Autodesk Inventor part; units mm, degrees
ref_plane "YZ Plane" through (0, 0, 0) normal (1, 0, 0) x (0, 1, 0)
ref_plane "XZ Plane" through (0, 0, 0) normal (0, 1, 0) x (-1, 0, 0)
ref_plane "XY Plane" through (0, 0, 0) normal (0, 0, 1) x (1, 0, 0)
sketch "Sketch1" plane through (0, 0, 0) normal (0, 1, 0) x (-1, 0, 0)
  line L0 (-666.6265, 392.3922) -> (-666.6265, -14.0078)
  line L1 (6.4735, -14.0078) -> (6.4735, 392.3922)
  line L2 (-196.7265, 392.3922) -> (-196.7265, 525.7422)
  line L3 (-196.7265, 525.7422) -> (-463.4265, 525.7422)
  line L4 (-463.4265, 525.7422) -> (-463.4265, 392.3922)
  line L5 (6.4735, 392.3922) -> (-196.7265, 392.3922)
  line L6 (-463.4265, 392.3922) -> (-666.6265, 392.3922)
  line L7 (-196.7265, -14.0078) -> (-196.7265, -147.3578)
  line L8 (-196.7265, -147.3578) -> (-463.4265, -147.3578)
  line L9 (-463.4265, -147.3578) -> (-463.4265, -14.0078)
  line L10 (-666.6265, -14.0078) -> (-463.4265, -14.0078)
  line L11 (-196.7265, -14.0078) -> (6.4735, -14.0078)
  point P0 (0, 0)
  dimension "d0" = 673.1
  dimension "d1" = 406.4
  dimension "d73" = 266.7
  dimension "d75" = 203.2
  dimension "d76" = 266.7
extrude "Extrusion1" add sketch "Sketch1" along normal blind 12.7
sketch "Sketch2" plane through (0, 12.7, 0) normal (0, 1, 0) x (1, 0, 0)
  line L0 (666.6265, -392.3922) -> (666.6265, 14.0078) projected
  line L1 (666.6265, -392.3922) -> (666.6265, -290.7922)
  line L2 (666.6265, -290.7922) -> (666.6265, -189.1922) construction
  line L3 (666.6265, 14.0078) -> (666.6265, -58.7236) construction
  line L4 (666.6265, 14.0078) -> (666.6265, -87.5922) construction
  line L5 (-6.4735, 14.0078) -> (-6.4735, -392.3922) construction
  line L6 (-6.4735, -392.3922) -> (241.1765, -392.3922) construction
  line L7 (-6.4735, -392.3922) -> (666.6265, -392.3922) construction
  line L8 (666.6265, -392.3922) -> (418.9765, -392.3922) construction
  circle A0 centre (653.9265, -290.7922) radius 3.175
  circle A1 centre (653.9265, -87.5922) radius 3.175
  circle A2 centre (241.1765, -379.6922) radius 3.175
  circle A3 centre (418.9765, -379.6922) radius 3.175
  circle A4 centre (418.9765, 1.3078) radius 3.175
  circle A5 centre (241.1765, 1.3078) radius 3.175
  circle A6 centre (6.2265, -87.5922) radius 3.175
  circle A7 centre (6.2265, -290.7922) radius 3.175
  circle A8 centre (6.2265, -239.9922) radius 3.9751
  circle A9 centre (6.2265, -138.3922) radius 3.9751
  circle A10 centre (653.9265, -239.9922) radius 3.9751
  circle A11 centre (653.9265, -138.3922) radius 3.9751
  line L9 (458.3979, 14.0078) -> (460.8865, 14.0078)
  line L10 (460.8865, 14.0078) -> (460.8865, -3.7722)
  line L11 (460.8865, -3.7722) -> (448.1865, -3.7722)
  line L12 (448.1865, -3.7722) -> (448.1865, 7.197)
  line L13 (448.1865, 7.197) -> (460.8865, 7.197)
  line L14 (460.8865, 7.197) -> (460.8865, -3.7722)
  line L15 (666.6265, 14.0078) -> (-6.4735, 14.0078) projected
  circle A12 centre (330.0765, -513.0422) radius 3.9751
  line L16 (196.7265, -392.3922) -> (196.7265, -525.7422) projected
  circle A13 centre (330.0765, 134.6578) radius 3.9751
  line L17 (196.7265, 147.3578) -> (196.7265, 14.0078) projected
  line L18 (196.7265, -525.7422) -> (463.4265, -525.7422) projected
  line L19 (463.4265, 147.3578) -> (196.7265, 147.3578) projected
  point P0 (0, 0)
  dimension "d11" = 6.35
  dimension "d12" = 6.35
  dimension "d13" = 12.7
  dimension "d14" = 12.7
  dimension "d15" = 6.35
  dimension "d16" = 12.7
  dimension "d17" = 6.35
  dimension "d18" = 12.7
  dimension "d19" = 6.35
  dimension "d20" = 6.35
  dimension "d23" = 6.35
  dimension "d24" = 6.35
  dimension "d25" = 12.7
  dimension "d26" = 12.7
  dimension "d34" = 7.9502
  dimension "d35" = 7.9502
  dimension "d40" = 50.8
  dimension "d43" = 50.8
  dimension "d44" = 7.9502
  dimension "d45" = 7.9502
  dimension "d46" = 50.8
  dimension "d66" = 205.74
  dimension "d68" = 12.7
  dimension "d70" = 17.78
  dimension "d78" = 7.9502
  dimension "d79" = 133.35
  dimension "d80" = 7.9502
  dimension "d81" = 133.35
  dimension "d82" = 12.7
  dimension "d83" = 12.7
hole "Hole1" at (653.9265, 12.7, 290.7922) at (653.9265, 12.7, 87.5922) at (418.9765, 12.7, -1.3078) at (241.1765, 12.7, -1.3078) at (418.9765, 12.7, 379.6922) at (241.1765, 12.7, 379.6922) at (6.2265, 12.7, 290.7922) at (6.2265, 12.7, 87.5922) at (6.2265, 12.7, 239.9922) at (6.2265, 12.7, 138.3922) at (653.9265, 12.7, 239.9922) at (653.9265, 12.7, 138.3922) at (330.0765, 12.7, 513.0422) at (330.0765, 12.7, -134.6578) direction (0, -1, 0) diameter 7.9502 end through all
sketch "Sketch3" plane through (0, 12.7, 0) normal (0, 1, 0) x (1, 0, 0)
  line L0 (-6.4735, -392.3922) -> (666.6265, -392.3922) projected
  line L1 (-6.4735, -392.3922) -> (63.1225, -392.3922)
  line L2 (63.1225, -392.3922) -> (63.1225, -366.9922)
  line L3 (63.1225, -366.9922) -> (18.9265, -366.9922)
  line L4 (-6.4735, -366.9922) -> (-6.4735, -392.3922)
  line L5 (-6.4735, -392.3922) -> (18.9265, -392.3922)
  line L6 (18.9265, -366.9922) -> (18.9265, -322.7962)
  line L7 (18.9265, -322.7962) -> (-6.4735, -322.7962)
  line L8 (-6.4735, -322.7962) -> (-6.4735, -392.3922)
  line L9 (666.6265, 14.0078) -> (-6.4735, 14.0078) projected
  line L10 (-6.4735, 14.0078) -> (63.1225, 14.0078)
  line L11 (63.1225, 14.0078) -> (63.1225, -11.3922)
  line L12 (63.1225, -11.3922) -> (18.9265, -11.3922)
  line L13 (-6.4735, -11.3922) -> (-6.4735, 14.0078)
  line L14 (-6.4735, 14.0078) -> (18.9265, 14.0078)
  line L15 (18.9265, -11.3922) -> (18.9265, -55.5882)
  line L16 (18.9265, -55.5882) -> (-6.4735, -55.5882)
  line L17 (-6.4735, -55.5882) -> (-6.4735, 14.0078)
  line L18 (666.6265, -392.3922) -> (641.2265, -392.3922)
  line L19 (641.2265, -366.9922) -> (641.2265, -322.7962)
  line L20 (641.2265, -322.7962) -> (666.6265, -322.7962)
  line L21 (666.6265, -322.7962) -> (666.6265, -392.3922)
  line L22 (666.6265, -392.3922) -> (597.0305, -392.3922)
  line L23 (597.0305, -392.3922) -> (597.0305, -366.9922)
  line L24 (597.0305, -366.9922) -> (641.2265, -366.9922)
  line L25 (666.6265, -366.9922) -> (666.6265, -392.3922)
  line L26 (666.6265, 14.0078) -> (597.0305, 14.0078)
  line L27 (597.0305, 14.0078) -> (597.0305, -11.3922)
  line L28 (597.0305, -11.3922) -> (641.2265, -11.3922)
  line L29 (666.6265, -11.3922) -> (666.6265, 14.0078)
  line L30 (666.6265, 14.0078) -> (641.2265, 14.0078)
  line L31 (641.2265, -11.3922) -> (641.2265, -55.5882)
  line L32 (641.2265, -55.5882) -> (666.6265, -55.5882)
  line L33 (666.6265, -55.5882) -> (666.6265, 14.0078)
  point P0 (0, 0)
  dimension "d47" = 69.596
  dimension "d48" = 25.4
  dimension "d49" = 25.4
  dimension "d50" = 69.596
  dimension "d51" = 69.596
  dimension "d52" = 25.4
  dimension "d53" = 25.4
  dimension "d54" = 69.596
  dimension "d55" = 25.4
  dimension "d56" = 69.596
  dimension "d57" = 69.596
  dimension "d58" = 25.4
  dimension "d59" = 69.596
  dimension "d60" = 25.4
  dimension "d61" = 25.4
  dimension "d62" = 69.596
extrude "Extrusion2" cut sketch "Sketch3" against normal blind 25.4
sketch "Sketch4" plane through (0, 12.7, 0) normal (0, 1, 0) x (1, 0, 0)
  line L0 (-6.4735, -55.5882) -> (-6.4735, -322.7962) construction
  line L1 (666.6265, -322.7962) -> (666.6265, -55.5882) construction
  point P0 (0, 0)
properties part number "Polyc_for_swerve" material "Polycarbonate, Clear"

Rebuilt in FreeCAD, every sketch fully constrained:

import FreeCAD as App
import Part
import Sketcher
Q = App.Units.Quantity


def add_polygon(sketch, points):
    """Adds a closed chain of lines whose ends are joined by coincident constraints."""
    first, n = sketch.GeometryCount, len(points)
    for a, b in zip(points, points[1:] + points[:1]):
        sketch.addGeometry(Part.LineSegment(App.Vector(*a, 0), App.Vector(*b, 0)), False)
    for i in range(n):
        sketch.addConstraint(Sketcher.Constraint("Coincident", first + i, 2, first + (i + 1) % n, 1))

doc = App.newDocument("Part")
body = doc.addObject("PartDesign::Body", "Body")

# Sketch on XZ plane
sketch1 = doc.addObject("Sketcher::SketchObject", "Sketch")
body.addObject(sketch1)
sketch1.AttachmentSupport = (doc.XZ_Plane, [""])
sketch1.MapMode = "FlatFace"
add_polygon(sketch1, [(463, 392), (667, 392), (667, -14), (463, -14), (463, -147), (197, -147), (197, -14), (-6, -14), (-6, 392), (197, 392), (197, 526), (463, 526)])  # lines 0-11
sketch1.addConstraint([
    Sketcher.Constraint("Horizontal", 0),
    Sketcher.Constraint("Vertical", 1),
    Sketcher.Constraint("Horizontal", 2),
    Sketcher.Constraint("Vertical", 3),
    Sketcher.Constraint("Horizontal", 4),
    Sketcher.Constraint("Vertical", 5),
    Sketcher.Constraint("Horizontal", 6),
    Sketcher.Constraint("Vertical", 7),
    Sketcher.Constraint("Horizontal", 8),
    Sketcher.Constraint("Vertical", 9),
    Sketcher.Constraint("Horizontal", 10),
    Sketcher.Constraint("Vertical", 11),
    Sketcher.Constraint("Horizontal", 2, 2, 5, 2),
    Sketcher.Constraint("Horizontal", 0, 2, 7, 2),
    Sketcher.Constraint("Vertical", 5, 2, 8, 2),
    Sketcher.Constraint("Vertical", 3, 2, 10, 2),
    Sketcher.Constraint("Equal", 2, 6),
    Sketcher.Constraint("Equal", 5, 9),
    Sketcher.Constraint("DistanceX", 0, 1, 0, 2, Q("8 in")),
    Sketcher.Constraint("DistanceY", 1, 2, 1, 1, Q("16 in")),
    Sketcher.Constraint("DistanceX", 4, 2, 4, 1, Q("10.5 in")),
    Sketcher.Constraint("DistanceY", 3, 2, 3, 1, Q("5.25 in")),
    Sketcher.Constraint("DistanceY", -1, 1, 0, 2, Q("15.4485 in")),
    Sketcher.Constraint("DistanceX", -1, 1, 0, 2, 666.6265),
])
pad1 = doc.addObject("PartDesign::Pad", "Pad")
body.addObject(pad1)
pad1.Profile = sketch1
pad1.Length = Q("0.5 in")
pad1.Reversed = True

# Sketch on XZ plane
sketch2 = doc.addObject("Sketcher::SketchObject", "Sketch001")
body.addObject(sketch2)
sketch2.AttachmentSupport = (doc.XZ_Plane, [""])
sketch2.MapMode = "FlatFace"
sketch2.AttachmentOffset = App.Placement(App.Vector(0, 0, -0.5 * 25.4), App.Rotation())
sketch2.addGeometry([
    Part.Circle(App.Vector(653.9, 290.8, 0), App.Vector(0, 0, 1), 4),  # 0
    Part.Circle(App.Vector(653.9, 87.6, 0), App.Vector(0, 0, 1), 4),  # 1
    Part.Circle(App.Vector(419, -1.3, 0), App.Vector(0, 0, 1), 4),  # 2
    Part.Circle(App.Vector(241.2, -1.3, 0), App.Vector(0, 0, 1), 4),  # 3
    Part.Circle(App.Vector(419, 379.7, 0), App.Vector(0, 0, 1), 4),  # 4
    Part.Circle(App.Vector(241.2, 379.7, 0), App.Vector(0, 0, 1), 4),  # 5
    Part.Circle(App.Vector(6.2, 290.8, 0), App.Vector(0, 0, 1), 4),  # 6
    Part.Circle(App.Vector(6.2, 87.6, 0), App.Vector(0, 0, 1), 4),  # 7
    Part.Circle(App.Vector(6.2, 240, 0), App.Vector(0, 0, 1), 4),  # 8
    Part.Circle(App.Vector(6.2, 138.4, 0), App.Vector(0, 0, 1), 4),  # 9
    Part.Circle(App.Vector(653.9, 240, 0), App.Vector(0, 0, 1), 4),  # 10
    Part.Circle(App.Vector(653.9, 138.4, 0), App.Vector(0, 0, 1), 4),  # 11
    Part.Circle(App.Vector(330.1, 513, 0), App.Vector(0, 0, 1), 4),  # 12
    Part.Circle(App.Vector(330.1, -134.7, 0), App.Vector(0, 0, 1), 4),  # 13
], False)
sketch2.addConstraint([
    Sketcher.Constraint("Equal", 0, 1),
    Sketcher.Constraint("Equal", 1, 2),
    Sketcher.Constraint("Equal", 2, 3),
    Sketcher.Constraint("Equal", 3, 4),
    Sketcher.Constraint("Equal", 4, 5),
    Sketcher.Constraint("Equal", 5, 6),
    Sketcher.Constraint("Equal", 6, 7),
    Sketcher.Constraint("Equal", 7, 8),
    Sketcher.Constraint("Equal", 8, 9),
    Sketcher.Constraint("Equal", 9, 10),
    Sketcher.Constraint("Equal", 10, 11),
    Sketcher.Constraint("Equal", 11, 12),
    Sketcher.Constraint("Equal", 12, 13),
    Sketcher.Constraint("Horizontal", 2, 3, 3, 3),
    Sketcher.Constraint("Horizontal", 4, 3, 5, 3),
    Sketcher.Constraint("Horizontal", 0, 3, 6, 3),
    Sketcher.Constraint("Horizontal", 1, 3, 7, 3),
    Sketcher.Constraint("Horizontal", 8, 3, 10, 3),
    Sketcher.Constraint("Horizontal", 9, 3, 11, 3),
    Sketcher.Constraint("Vertical", 0, 3, 1, 3),
    Sketcher.Constraint("Vertical", 2, 3, 4, 3),
    Sketcher.Constraint("Vertical", 3, 3, 5, 3),
    Sketcher.Constraint("Vertical", 6, 3, 7, 3),
    Sketcher.Constraint("Vertical", 7, 3, 8, 3),
    Sketcher.Constraint("Vertical", 8, 3, 9, 3),
    Sketcher.Constraint("Vertical", 1, 3, 10, 3),
    Sketcher.Constraint("Vertical", 10, 3, 11, 3),
    Sketcher.Constraint("Vertical", 12, 3, 13, 3),
    Sketcher.Constraint("Diameter", 0, Q("0.313 in")),
    Sketcher.Constraint("DistanceY", 1, 3, 0, 3, Q("8 in")),
    Sketcher.Constraint("DistanceX", 3, 3, 2, 3, Q("7 in")),
    Sketcher.Constraint("DistanceY", 2, 3, 4, 3, Q("15 in")),
    Sketcher.Constraint("DistanceY", 8, 3, 6, 3, Q("2 in")),
    Sketcher.Constraint("DistanceY", 7, 3, 9, 3, Q("2 in")),
    Sketcher.Constraint("DistanceY", 2, 3, 1, 3, Q("3.5 in")),
    Sketcher.Constraint("DistanceX", 6, 3, 0, 3, Q("25.5 in")),
    Sketcher.Constraint("DistanceX", 12, 3, 4, 3, Q("3.5 in")),
    Sketcher.Constraint("DistanceX", 2, 3, 1, 3, Q("9.25 in")),
    Sketcher.Constraint("DistanceY", 4, 3, 12, 3, Q("5.25 in")),
    Sketcher.Constraint("DistanceY", 13, 3, 2, 3, Q("5.25 in")),
    Sketcher.Constraint("DistanceY", -1, 1, 0, 3, Q("11.4485 in")),
    Sketcher.Constraint("DistanceX", -1, 1, 0, 3, 653.9265),
])
doc.recompute()
hole = doc.addObject("PartDesign::Hole", "Hole")
body.addObject(hole)
hole.Profile = sketch2
hole.ThreadType = "None"
hole.Diameter = Q("0.313 in")
hole.DepthType = "ThroughAll"
hole.Reversed = True

# Sketch on XZ plane
sketch3 = doc.addObject("Sketcher::SketchObject", "Sketch002")
body.addObject(sketch3)
sketch3.AttachmentSupport = (doc.XZ_Plane, [""])
sketch3.MapMode = "FlatFace"
sketch3.AttachmentOffset = App.Placement(App.Vector(0, 0, -0.5 * 25.4), App.Rotation())
add_polygon(sketch3, [(-6, 323), (-6, 392), (63, 392), (63, 367), (19, 367), (19, 323)])  # lines 0-5
add_polygon(sketch3, [(597, 367), (597, 392), (667, 392), (667, 323), (641, 323), (641, 367)])  # lines 6-11
add_polygon(sketch3, [(667, 56), (667, -14), (597, -14), (597, 11), (641, 11), (641, 56)])  # lines 12-17
add_polygon(sketch3, [(63, 11), (63, -14), (-6, -14), (-6, 56), (19, 56), (19, 11)])  # lines 18-23
sketch3.addConstraint([
    Sketcher.Constraint("Vertical", 0),
    Sketcher.Constraint("Horizontal", 1),
    Sketcher.Constraint("Vertical", 2),
    Sketcher.Constraint("Horizontal", 3),
    Sketcher.Constraint("Vertical", 4),
    Sketcher.Constraint("Horizontal", 5),
    Sketcher.Constraint("Vertical", 6),
    Sketcher.Constraint("Horizontal", 7),
    Sketcher.Constraint("Vertical", 8),
    Sketcher.Constraint("Horizontal", 9),
    Sketcher.Constraint("Vertical", 10),
    Sketcher.Constraint("Horizontal", 11),
    Sketcher.Constraint("Vertical", 12),
    Sketcher.Constraint("Horizontal", 13),
    Sketcher.Constraint("Vertical", 14),
    Sketcher.Constraint("Horizontal", 15),
    Sketcher.Constraint("Vertical", 16),
    Sketcher.Constraint("Horizontal", 17),
    Sketcher.Constraint("Vertical", 18),
    Sketcher.Constraint("Horizontal", 19),
    Sketcher.Constraint("Vertical", 20),
    Sketcher.Constraint("Horizontal", 21),
    Sketcher.Constraint("Vertical", 22),
    Sketcher.Constraint("Horizontal", 23),
    Sketcher.Constraint("Horizontal", 1, 2, 6, 2),
    Sketcher.Constraint("Horizontal", 5, 2, 8, 2),
    Sketcher.Constraint("Horizontal", 3, 2, 10, 2),
    Sketcher.Constraint("Horizontal", 13, 2, 18, 2),
    Sketcher.Constraint("Horizontal", 17, 2, 20, 2),
    Sketcher.Constraint("Horizontal", 15, 2, 22, 2),
    Sketcher.Constraint("Vertical", 8, 2, 12, 2),
    Sketcher.Constraint("Vertical", 11, 2, 13, 2),
    Sketcher.Constraint("Vertical", 10, 2, 15, 2),
    Sketcher.Constraint("Vertical", 2, 2, 18, 2),
    Sketcher.Constraint("Vertical", 5, 2, 19, 2),
    Sketcher.Constraint("Vertical", 4, 2, 21, 2),
    Sketcher.Constraint("Equal", 1, 7),
    Sketcher.Constraint("Equal", 5, 9),
    Sketcher.Constraint("Equal", 19, 0),
    Sketcher.Constraint("Equal", 21, 2),
    Sketcher.Constraint("Equal", 8, 12),
    Sketcher.Constraint("Equal", 6, 14),
    Sketcher.Constraint("DistanceX", 5, 2, 5, 1, Q("1 in")),
    Sketcher.Constraint("DistanceX", 1, 1, 1, 2, Q("2.74 in")),
    Sketcher.Constraint("DistanceY", 12, 2, 10, 2, Q("15 in")),
    Sketcher.Constraint("DistanceX", 3, 2, 7, 2, Q("25.5 in")),
    Sketcher.Constraint("DistanceY", -1, 1, 0, 2, Q("15.4485 in")),
    Sketcher.Constraint("DistanceX", 0, 2, -1, 1, 6.4735),
])
pocket1 = doc.addObject("PartDesign::Pocket", "Pocket")
body.addObject(pocket1)
pocket1.Profile = sketch3
pocket1.Length = Q("1 in")
pocket1.Reversed = True

doc.recompute()
